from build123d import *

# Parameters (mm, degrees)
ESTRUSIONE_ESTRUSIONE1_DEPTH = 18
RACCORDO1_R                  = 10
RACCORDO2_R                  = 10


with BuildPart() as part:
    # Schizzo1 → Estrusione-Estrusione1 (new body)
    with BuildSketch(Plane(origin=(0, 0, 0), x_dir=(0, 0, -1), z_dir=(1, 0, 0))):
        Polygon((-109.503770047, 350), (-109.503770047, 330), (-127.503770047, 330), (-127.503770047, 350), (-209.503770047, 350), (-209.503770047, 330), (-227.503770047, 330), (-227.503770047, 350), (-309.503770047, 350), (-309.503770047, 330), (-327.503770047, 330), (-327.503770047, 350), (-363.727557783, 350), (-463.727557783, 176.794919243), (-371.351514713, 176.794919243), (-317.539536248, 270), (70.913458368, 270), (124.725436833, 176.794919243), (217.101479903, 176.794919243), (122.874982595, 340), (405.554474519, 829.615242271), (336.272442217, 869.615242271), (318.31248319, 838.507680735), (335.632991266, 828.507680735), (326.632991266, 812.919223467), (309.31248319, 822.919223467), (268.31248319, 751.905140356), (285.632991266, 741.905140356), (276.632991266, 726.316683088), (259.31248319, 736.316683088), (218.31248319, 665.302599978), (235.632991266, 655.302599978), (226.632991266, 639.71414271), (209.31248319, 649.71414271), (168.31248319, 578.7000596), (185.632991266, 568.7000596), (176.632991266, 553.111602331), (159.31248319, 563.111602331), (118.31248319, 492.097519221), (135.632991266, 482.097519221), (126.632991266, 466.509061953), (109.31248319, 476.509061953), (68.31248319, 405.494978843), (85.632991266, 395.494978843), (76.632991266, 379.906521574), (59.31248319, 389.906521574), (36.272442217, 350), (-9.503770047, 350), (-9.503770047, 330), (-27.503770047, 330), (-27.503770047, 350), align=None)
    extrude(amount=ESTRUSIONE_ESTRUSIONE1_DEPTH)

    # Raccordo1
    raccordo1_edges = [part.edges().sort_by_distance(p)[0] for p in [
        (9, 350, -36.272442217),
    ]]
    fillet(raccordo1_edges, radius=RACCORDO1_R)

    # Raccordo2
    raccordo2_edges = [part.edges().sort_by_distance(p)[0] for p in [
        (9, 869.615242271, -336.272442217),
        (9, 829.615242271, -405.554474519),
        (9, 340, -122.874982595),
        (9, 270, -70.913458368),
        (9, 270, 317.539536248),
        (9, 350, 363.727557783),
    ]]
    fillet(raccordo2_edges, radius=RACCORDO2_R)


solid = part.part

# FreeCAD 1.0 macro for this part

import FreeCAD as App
import Part
import Sketcher
Q = App.Units.Quantity


def edges_at(feature, points):
    """Names of the edges that pass closest to the given points."""
    edges = feature.Shape.Edges
    near = lambda p: min(range(len(edges)), key=lambda i: edges[i].distToShape(Part.Vertex(*p))[0])
    return sorted({f"Edge{near(p) + 1}" for p in points})


def add_polygon(sketch, points):
    """Adds a closed chain of lines whose ends are joined by coincident constraints."""
    first, n = sketch.GeometryCount, len(points)
    for a, b in zip(points, points[1:] + points[:1]):
        sketch.addGeometry(Part.LineSegment(App.Vector(*a, 0), App.Vector(*b, 0)), False)
    for i in range(n):
        sketch.addConstraint(Sketcher.Constraint("Coincident", first + i, 2, first + (i + 1) % n, 1))

doc = App.newDocument("Part")
params = doc.addObject("Spreadsheet::Sheet", "Params")
for row, (alias, value) in enumerate([
    ("sketch1_width", "20 mm"),
    ("sketch1_height", "18 mm"),
    ("sketch1_height2", "82 mm"),
    ("sketch1_length", "200 mm"),
    ("sketch1_length2", "80 mm"),
    ("pad1_length", "18 mm"),
    ("fillet_radius", "10 mm"),
    ("fillet2_radius", "10 mm"),
], start=1):
    params.set(f"A{row}", alias)
    params.set(f"B{row}", "=" + value)
    params.setAlias(f"B{row}", alias)

body = doc.addObject("PartDesign::Body", "Body")

# Sketch on YZ plane
sketch1 = body.newObject("Sketcher::SketchObject", "Sketch")
sketch1.AttachmentSupport = (doc.getObject("YZ_Plane"), [""])
sketch1.MapMode = "FlatFace"
add_polygon(sketch1, [(350, 110), (330, 110), (330, 128), (350, 128), (350, 210), (330, 210), (330, 228), (350, 228), (350, 310), (330, 310), (330, 328), (350, 328), (350, 364), (177, 464), (177, 371), (270, 318), (270, -71), (177, -125), (177, -217), (340, -123), (830, -406), (870, -336), (839, -318), (829, -336), (813, -327), (823, -309), (752, -268), (742, -286), (726, -277), (736, -259), (665, -218), (655, -236), (640, -227), (650, -209), (579, -168), (569, -186), (553, -177), (563, -159), (492, -118), (482, -136), (467, -127), (477, -109), (405, -68), (395, -86), (380, -77), (390, -59), (350, -36), (350, 10), (330, 10), (330, 28), (350, 28)])  # lines 0-50
sketch1.addConstraint([
    Sketcher.Constraint("Horizontal", 0),
    Sketcher.Constraint("Vertical", 1),
    Sketcher.Constraint("Horizontal", 2),
    Sketcher.Constraint("Vertical", 3),
    Sketcher.Constraint("Horizontal", 4),
    Sketcher.Constraint("Vertical", 5),
    Sketcher.Constraint("Horizontal", 6),
    Sketcher.Constraint("Vertical", 7),
    Sketcher.Constraint("Horizontal", 8),
    Sketcher.Constraint("Vertical", 9),
    Sketcher.Constraint("Horizontal", 10),
    Sketcher.Constraint("Vertical", 11),
    Sketcher.Constraint("Vertical", 13),
    Sketcher.Constraint("Vertical", 15),
    Sketcher.Constraint("Vertical", 17),
    Sketcher.Constraint("Vertical", 46),
    Sketcher.Constraint("Horizontal", 47),
    Sketcher.Constraint("Vertical", 48),
    Sketcher.Constraint("Horizontal", 49),
    Sketcher.Constraint("Vertical", 50),
    Sketcher.Constraint("Parallel", 12, 14),
    Sketcher.Constraint("Parallel", 16, 18),
    Sketcher.Constraint("Parallel", 14, 19),
    Sketcher.Constraint("Perpendicular", 19, 20),
    Sketcher.Constraint("Perpendicular", 20, 21),
    Sketcher.Constraint("Perpendicular", 21, 22),
    Sketcher.Constraint("Perpendicular", 22, 23),
    Sketcher.Constraint("Perpendicular", 23, 24),
    Sketcher.Constraint("Perpendicular", 24, 25),
    Sketcher.Constraint("Perpendicular", 25, 26),
    Sketcher.Constraint("Perpendicular", 26, 27),
    Sketcher.Constraint("Perpendicular", 27, 28),
    Sketcher.Constraint("Perpendicular", 28, 29),
    Sketcher.Constraint("Perpendicular", 29, 30),
    Sketcher.Constraint("Perpendicular", 30, 31),
    Sketcher.Constraint("Perpendicular", 31, 32),
    Sketcher.Constraint("Perpendicular", 32, 33),
    Sketcher.Constraint("Perpendicular", 33, 34),
    Sketcher.Constraint("Perpendicular", 34, 35),
    Sketcher.Constraint("Perpendicular", 35, 36),
    Sketcher.Constraint("Perpendicular", 36, 37),
    Sketcher.Constraint("Perpendicular", 37, 38),
    Sketcher.Constraint("Perpendicular", 38, 39),
    Sketcher.Constraint("Perpendicular", 39, 40),
    Sketcher.Constraint("Perpendicular", 40, 41),
    Sketcher.Constraint("Perpendicular", 41, 42),
    Sketcher.Constraint("Perpendicular", 42, 43),
    Sketcher.Constraint("Perpendicular", 43, 44),
    Sketcher.Constraint("Perpendicular", 44, 45),
    Sketcher.Constraint("Vertical", 1, 2, 4, 2),
    Sketcher.Constraint("Vertical", 3, 2, 6, 2),
    Sketcher.Constraint("Vertical", 5, 2, 8, 2),
    Sketcher.Constraint("Vertical", 7, 2, 10, 2),
    Sketcher.Constraint("Vertical", 13, 2, 16, 2),
    Sketcher.Constraint("Vertical", 11, 2, 45, 2),
    Sketcher.Constraint("Vertical", 9, 2, 47, 2),
    Sketcher.Constraint("Vertical", 46, 2, 49, 2),
    Sketcher.Constraint("Equal", 1, 5),
    Sketcher.Constraint("Equal", 3, 7),
    Sketcher.Constraint("Equal", 5, 9),
    Sketcher.Constraint("Equal", 13, 17),
    Sketcher.Constraint("Equal", 9, 48),
    Sketcher.Constraint("Equal", 7, 50),
    Sketcher.Constraint("Equal", 14, 16),
    Sketcher.Constraint("Equal", 22, 24),
    Sketcher.Constraint("Equal", 24, 26),
    Sketcher.Constraint("Equal", 23, 27),
    Sketcher.Constraint("Equal", 26, 28),
    Sketcher.Constraint("Equal", 25, 29),
    Sketcher.Constraint("Equal", 28, 30),
    Sketcher.Constraint("Equal", 27, 31),
    Sketcher.Constraint("Equal", 30, 32),
    Sketcher.Constraint("Equal", 29, 33),
    Sketcher.Constraint("Equal", 32, 34),
    Sketcher.Constraint("Equal", 31, 35),
    Sketcher.Constraint("Equal", 34, 36),
    Sketcher.Constraint("Equal", 33, 37),
    Sketcher.Constraint("Equal", 36, 38),
    Sketcher.Constraint("Equal", 35, 39),
    Sketcher.Constraint("Equal", 38, 40),
    Sketcher.Constraint("Equal", 37, 41),
    Sketcher.Constraint("Equal", 40, 42),
    Sketcher.Constraint("Equal", 39, 43),
    Sketcher.Constraint("Equal", 42, 44),
    Sketcher.Constraint("DistanceX", 0, 2, 0, 1, 20.0),
    Sketcher.Constraint("DistanceY", 1, 1, 1, 2, 18.0),
    Sketcher.Constraint("DistanceY", 3, 1, 3, 2, 82.0),
    Sketcher.Constraint("Angle", 12, Q("150 deg")),
    Sketcher.Constraint("Distance", 12, 200.0),
    Sketcher.Constraint("Distance", 20, 80.0),
    Sketcher.Constraint("Distance", 22, 20.0),
    Sketcher.Constraint("Distance", 23, 18.0),
    Sketcher.Constraint("Distance", 25, 82.0),
    Sketcher.Constraint("DistanceX", -1, 1, 0, 2, 330.0),
    Sketcher.Constraint("DistanceX", -1, 1, 14, 2, 270.0),
    Sketcher.Constraint("DistanceX", -1, 1, 18, 2, 340.0),
    Sketcher.Constraint("DistanceX", -1, 1, 29, 2, 665.3026),
    Sketcher.Constraint("DistanceX", 25, 2, 20, 2, 117.710102),
    Sketcher.Constraint("DistanceY", 11, 1, 11, 2, 36.223788),
    Sketcher.Constraint("DistanceY", 13, 2, 13, 1, 92.376043),
    Sketcher.Constraint("DistanceY", 15, 2, 15, 1, 388.452995),
    Sketcher.Constraint("DistanceY", -1, 1, 0, 2, 109.50377),
])
sketch1.setExpression("Constraints[135]", "Params.sketch1_width")
sketch1.setExpression("Constraints[136]", "Params.sketch1_height")
sketch1.setExpression("Constraints[137]", "Params.sketch1_height2")
sketch1.setExpression("Constraints[139]", "Params.sketch1_length")
sketch1.setExpression("Constraints[140]", "Params.sketch1_length2")
pad1 = body.newObject("PartDesign::Pad", "Pad")
pad1.Profile = sketch1
pad1.setExpression("Length", "Params.pad1_length")
doc.recompute()

fillet = body.newObject("PartDesign::Fillet", "Fillet")
fillet.Base = (pad1, edges_at(pad1, [(9, 350, -36.272)]))
fillet.setExpression("Radius", "Params.fillet_radius")
doc.recompute()

fillet2 = body.newObject("PartDesign::Fillet", "Fillet001")
fillet2.Base = (fillet, edges_at(fillet, [
    (9, 869.615, -336.272),
    (9, 829.615, -405.554),
    (9, 340, -122.875),
    (9, 270, -70.913),
    (9, 270, 317.54),
    (9, 350, 363.728),
]))
fillet2.setExpression("Radius", "Params.fillet2_radius")

doc.recompute()
